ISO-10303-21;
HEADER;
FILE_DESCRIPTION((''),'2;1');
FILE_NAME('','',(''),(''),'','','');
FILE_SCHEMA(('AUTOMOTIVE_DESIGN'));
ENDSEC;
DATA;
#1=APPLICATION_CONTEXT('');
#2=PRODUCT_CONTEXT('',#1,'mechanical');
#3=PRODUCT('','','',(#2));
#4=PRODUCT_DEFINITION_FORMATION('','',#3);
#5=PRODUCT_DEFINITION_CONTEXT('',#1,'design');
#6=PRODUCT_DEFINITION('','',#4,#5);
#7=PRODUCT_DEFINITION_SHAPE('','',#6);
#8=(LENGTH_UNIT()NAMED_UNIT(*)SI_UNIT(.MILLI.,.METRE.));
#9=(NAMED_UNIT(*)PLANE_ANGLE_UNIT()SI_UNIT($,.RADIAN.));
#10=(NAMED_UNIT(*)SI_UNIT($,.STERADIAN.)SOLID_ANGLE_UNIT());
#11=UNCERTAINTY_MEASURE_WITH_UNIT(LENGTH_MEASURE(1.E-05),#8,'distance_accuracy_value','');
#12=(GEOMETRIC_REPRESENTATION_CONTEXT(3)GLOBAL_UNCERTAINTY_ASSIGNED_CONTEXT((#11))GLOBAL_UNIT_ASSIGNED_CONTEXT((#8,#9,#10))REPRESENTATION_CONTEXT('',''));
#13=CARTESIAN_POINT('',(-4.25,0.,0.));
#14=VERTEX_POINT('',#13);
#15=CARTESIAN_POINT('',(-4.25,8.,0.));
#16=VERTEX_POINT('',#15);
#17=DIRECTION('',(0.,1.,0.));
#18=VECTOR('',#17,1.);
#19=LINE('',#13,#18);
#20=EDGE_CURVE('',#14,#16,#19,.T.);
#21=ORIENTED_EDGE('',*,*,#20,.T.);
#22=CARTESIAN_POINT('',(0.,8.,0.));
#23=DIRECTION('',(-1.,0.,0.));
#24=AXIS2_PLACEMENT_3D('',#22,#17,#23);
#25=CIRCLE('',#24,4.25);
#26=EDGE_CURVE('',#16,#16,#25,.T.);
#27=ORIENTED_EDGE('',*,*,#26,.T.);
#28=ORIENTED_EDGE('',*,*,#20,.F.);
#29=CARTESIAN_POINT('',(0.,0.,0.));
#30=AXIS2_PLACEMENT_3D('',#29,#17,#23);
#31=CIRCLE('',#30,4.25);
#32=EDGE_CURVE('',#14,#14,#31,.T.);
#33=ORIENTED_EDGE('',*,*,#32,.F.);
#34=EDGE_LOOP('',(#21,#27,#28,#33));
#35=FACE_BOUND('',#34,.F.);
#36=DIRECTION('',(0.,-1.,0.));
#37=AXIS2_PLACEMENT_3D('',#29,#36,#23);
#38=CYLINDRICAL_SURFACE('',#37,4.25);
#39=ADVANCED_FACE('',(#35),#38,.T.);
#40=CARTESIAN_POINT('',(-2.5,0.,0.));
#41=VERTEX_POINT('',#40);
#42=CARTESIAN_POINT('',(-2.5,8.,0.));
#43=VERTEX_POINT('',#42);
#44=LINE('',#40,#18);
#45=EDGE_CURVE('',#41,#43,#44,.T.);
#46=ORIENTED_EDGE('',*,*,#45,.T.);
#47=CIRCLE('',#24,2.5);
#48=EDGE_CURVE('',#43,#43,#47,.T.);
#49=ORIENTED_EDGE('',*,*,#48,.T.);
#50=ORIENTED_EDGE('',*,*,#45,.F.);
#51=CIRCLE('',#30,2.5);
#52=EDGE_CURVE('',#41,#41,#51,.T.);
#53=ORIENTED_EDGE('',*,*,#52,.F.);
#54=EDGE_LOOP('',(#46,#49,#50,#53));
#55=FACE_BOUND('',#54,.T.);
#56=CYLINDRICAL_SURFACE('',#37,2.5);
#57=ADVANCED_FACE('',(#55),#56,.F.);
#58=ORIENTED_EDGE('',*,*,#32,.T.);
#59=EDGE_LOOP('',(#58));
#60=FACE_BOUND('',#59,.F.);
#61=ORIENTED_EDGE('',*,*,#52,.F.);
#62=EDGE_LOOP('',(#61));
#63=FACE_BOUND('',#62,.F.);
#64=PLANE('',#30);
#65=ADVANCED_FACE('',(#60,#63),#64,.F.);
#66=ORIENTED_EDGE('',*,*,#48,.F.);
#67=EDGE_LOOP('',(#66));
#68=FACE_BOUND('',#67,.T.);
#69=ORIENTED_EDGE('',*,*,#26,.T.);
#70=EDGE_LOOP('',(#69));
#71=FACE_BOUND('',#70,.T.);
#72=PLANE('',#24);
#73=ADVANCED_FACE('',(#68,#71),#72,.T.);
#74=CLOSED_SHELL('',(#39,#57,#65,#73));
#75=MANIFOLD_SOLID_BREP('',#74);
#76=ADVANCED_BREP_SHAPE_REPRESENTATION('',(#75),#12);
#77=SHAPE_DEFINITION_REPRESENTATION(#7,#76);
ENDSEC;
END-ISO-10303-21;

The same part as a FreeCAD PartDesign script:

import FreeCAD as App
import Part
import Sketcher
Q = App.Units.Quantity

doc = App.newDocument("Part")
params = doc.addObject("Spreadsheet::Sheet", "Params")
for row, (alias, value) in enumerate([
    ("sketch1_diameter", "5 mm"),
    ("sketch1_diameter2", "8.5 mm"),
    ("pad1_length", "8 mm"),
], start=1):
    params.set(f"A{row}", alias)
    params.set(f"B{row}", "=" + value)
    params.setAlias(f"B{row}", alias)

body = doc.addObject("PartDesign::Body", "Body")

# Sketch on XZ plane
sketch1 = doc.addObject("Sketcher::SketchObject", "Sketch")
body.addObject(sketch1)
sketch1.AttachmentSupport = (doc.XZ_Plane, [""])
sketch1.MapMode = "FlatFace"
sketch1.addGeometry(Part.Circle(App.Vector(0, 0, 0), App.Vector(0, 0, 1), 4.25), False)
sketch1.addGeometry(Part.Circle(App.Vector(0, 0, 0), App.Vector(0, 0, 1), 2.5), False)
sketch1.addConstraint(Sketcher.Constraint("Coincident", 0, 3, -1, 1))
sketch1.addConstraint(Sketcher.Constraint("Coincident", 1, 3, -1, 1))
sketch1.addConstraint(Sketcher.Constraint("Diameter", 1, Q("5 mm")))
sketch1.addConstraint(Sketcher.Constraint("Diameter", 0, Q("8.5 mm")))
sketch1.setExpression("Constraints[2]", "Params.sketch1_diameter")
sketch1.setExpression("Constraints[3]", "Params.sketch1_diameter2")
pad1 = doc.addObject("PartDesign::Pad", "Pad")
body.addObject(pad1)
pad1.Profile = sketch1
pad1.setExpression("Length", "Params.pad1_length")
pad1.Reversed = True

doc.recompute()
